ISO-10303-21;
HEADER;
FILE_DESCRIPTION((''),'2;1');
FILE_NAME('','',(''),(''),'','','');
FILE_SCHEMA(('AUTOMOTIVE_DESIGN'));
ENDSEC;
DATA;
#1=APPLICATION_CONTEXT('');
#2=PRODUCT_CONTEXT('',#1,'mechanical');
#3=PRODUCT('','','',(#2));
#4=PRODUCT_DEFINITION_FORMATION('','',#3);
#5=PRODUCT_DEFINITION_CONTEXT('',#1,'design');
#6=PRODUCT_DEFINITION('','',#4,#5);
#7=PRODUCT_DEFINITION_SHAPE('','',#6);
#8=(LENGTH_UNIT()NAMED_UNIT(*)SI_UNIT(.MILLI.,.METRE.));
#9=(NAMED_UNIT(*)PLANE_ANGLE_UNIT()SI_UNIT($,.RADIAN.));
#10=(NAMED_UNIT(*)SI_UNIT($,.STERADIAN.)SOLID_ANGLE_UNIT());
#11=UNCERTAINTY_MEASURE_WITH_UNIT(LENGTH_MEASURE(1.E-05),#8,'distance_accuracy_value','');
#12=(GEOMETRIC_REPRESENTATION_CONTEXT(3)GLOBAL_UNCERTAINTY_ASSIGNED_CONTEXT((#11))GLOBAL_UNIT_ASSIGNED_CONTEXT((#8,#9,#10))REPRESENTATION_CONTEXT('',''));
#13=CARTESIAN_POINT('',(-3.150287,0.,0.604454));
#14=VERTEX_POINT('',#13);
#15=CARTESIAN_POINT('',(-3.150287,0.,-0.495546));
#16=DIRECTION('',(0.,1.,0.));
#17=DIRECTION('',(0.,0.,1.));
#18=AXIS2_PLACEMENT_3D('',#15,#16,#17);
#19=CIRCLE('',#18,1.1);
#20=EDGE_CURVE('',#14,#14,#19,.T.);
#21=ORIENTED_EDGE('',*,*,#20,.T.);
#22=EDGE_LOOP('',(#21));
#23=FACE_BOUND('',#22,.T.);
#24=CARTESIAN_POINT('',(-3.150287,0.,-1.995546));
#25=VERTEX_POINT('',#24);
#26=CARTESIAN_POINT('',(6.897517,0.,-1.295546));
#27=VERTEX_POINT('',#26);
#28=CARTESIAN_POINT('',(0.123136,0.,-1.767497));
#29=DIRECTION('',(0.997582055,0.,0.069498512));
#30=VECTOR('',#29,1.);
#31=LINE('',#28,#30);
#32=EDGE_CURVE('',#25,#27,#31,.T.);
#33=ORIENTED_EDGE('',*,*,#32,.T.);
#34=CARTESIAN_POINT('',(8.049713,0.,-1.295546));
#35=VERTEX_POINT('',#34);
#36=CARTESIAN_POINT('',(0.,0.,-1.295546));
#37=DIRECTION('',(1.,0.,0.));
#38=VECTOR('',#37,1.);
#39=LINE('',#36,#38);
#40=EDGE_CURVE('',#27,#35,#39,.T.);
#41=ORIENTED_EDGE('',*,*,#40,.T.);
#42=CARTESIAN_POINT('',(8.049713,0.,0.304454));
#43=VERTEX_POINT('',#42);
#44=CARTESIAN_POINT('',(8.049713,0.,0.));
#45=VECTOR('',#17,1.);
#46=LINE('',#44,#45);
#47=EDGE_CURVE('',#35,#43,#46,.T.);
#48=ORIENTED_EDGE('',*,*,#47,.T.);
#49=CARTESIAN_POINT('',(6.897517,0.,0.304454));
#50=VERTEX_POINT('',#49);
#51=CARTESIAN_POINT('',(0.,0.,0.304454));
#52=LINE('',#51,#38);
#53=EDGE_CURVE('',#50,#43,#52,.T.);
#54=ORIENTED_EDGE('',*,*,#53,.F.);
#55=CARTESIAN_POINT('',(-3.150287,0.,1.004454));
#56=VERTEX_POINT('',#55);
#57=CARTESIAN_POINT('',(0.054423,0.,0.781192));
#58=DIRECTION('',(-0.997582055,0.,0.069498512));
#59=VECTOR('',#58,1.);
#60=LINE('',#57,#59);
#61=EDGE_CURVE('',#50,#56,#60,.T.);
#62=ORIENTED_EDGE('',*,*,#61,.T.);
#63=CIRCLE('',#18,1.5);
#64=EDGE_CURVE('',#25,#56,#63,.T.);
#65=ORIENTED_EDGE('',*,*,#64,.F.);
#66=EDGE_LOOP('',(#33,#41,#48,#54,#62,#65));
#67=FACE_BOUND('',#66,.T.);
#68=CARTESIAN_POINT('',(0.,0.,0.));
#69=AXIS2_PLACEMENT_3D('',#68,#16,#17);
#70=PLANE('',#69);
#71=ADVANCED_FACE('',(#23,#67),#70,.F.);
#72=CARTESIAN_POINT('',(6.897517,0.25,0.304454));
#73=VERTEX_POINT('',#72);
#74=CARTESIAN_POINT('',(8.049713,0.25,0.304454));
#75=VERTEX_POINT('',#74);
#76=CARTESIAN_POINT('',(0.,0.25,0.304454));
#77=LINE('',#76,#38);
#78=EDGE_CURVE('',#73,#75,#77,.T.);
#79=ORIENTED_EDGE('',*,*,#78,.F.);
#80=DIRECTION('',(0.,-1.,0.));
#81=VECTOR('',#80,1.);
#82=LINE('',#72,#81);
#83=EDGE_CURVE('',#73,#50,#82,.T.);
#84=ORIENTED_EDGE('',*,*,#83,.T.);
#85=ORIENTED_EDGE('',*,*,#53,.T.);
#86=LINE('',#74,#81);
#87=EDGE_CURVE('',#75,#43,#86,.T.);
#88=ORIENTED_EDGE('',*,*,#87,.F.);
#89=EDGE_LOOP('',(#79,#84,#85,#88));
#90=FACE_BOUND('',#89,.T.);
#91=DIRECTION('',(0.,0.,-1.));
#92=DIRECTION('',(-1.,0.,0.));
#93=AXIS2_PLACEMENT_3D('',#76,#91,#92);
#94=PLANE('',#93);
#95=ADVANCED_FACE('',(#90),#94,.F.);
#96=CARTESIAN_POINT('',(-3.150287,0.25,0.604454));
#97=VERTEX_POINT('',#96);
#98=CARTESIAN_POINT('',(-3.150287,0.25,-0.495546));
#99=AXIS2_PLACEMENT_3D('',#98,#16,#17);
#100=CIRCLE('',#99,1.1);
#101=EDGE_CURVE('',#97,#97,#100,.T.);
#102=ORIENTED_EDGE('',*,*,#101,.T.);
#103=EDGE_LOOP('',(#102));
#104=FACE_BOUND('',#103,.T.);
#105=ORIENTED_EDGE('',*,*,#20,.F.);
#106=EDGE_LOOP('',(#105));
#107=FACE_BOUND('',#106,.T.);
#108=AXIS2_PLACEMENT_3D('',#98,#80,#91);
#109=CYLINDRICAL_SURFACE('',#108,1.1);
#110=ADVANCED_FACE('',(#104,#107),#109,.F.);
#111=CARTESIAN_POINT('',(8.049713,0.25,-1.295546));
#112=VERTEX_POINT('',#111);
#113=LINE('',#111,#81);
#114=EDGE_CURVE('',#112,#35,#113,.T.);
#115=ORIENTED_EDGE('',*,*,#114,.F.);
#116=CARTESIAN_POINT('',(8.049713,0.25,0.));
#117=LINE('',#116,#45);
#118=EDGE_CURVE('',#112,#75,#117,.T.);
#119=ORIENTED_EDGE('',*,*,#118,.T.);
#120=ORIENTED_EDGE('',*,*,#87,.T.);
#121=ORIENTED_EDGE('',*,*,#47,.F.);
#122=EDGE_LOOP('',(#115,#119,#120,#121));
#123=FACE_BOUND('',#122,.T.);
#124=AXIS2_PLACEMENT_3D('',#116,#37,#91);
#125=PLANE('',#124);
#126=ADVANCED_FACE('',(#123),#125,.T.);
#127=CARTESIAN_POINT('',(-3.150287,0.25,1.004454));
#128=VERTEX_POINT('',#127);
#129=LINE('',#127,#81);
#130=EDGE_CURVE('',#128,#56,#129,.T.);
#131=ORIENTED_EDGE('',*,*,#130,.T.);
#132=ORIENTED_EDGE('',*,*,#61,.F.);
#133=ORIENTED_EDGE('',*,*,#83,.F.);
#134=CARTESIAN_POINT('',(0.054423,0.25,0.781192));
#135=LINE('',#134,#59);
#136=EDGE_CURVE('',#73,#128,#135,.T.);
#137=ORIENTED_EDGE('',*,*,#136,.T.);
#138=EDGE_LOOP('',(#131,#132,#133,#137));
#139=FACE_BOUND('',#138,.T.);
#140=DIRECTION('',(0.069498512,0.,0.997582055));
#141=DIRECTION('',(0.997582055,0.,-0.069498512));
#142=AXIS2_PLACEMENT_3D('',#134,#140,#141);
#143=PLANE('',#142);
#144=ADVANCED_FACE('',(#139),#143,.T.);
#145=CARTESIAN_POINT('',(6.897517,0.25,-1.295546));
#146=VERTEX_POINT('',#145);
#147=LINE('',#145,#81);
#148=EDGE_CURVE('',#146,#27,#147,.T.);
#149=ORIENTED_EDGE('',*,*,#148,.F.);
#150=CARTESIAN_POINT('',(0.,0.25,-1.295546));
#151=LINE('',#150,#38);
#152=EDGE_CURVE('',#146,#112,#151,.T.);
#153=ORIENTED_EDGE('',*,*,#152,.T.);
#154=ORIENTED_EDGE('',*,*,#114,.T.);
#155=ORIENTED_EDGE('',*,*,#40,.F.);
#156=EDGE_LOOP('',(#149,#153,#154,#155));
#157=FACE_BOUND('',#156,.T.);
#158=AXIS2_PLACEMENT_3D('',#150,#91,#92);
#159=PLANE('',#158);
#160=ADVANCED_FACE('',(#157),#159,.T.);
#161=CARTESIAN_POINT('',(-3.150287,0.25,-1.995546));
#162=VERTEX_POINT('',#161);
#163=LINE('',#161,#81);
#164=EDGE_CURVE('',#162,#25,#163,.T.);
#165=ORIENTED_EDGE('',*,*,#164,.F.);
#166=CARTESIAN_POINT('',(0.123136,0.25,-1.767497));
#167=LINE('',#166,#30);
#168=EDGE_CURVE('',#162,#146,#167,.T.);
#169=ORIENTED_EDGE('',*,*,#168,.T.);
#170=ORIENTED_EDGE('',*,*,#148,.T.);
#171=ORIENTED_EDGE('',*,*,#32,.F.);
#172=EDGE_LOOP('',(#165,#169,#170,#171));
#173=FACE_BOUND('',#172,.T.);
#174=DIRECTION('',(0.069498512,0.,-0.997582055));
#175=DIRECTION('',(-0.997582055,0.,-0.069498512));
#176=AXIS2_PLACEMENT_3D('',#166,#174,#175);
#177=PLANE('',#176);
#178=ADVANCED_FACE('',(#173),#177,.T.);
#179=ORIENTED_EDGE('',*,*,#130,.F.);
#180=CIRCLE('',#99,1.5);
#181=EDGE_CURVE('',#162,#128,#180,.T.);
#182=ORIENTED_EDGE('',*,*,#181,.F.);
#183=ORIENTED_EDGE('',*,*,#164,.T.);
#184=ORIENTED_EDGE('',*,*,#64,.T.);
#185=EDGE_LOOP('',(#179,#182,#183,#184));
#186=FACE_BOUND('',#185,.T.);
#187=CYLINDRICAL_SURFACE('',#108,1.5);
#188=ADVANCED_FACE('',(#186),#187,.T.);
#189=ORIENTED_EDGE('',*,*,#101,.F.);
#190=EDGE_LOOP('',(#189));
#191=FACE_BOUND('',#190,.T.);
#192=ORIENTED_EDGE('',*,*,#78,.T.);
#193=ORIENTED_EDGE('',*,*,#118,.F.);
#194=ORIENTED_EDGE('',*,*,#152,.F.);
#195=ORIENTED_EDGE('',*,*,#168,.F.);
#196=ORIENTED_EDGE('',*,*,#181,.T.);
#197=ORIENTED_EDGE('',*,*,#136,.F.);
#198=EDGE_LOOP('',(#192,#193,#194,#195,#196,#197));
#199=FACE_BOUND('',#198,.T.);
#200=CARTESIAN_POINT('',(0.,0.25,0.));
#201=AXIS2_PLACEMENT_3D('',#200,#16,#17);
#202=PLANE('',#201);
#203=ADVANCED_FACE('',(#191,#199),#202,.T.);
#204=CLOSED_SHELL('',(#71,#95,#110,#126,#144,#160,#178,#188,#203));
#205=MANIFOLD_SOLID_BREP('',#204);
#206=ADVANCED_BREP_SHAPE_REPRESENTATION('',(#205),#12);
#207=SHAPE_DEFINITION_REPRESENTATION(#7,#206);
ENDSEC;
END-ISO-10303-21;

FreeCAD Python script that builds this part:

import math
import FreeCAD as App
import Part
import Sketcher

V = App.Vector
Q = App.Units.Quantity

doc = App.newDocument("Part")
params = doc.addObject("Spreadsheet::Sheet", "Params")
for row, (alias, value) in enumerate([
    ("sketch1_radius", "1.5 mm"),
    ("sketch1_radius2", "1.1 mm"),
    ("sketch1_height", "1.6 mm"),
    ("pad1_length", "0.25 mm"),
], start=1):
    params.set(f"A{row}", alias)
    params.set(f"B{row}", "=" + value)
    params.setAlias(f"B{row}", alias)

body = doc.addObject("PartDesign::Body", "Body")

# Sketch on XZ plane
sketch1 = doc.addObject("Sketcher::SketchObject", "Sketch")
body.addObject(sketch1)
sketch1.AttachmentSupport = (doc.XZ_Plane, [""])
sketch1.MapMode = "FlatFace"
sketch1.addGeometry([
    Part.LineSegment(V(6.9, -1.3, 0), V(-2.94, -1.98, 0)),  # 0
    Part.LineSegment(V(-2.94, -1.98, 0), V(-3.15, -2, 0)),  # 1
    Part.ArcOfCircle(Part.Circle(V(-3.15, -0.5, 0), V(0, 0, 1), 1.5), math.radians(-148), math.radians(-90)),  # 2
    Part.ArcOfCircle(Part.Circle(V(-3.15, -0.5, 0), V(0, 0, 1), 1.5), math.radians(180), math.radians(212)),  # 3
    Part.ArcOfCircle(Part.Circle(V(-3.15, -0.5, 0), V(0, 0, 1), 1.5), math.radians(148), math.radians(180)),  # 4
    Part.ArcOfCircle(Part.Circle(V(-3.15, -0.5, 0), V(0, 0, 1), 1.5), math.radians(90), math.radians(148)),  # 5
    Part.LineSegment(V(-3.15, 1, 0), V(-2.94, 0.99, 0)),  # 6
    Part.LineSegment(V(-2.94, 0.99, 0), V(6.9, 0.3, 0)),  # 7
    Part.LineSegment(V(6.9, 0.3, 0), V(8.05, 0.3, 0)),  # 8
    Part.LineSegment(V(8.05, 0.3, 0), V(8.05, -1.3, 0)),  # 9
    Part.LineSegment(V(8.05, -1.3, 0), V(6.9, -1.3, 0)),  # 10
    Part.ArcOfCircle(Part.Circle(V(-3.15, -0.5, 0), V(0, 0, 1), 1.1), math.radians(133), math.radians(227)),  # 11
    Part.ArcOfCircle(Part.Circle(V(-3.15, -0.5, 0), V(0, 0, 1), 1.1), math.radians(-133), math.radians(-47)),  # 12
    Part.ArcOfCircle(Part.Circle(V(-3.15, -0.5, 0), V(0, 0, 1), 1.1), math.radians(-47), math.radians(0)),  # 13
    Part.ArcOfCircle(Part.Circle(V(-3.15, -0.5, 0), V(0, 0, 1), 1.1), math.radians(0), math.radians(47)),  # 14
    Part.ArcOfCircle(Part.Circle(V(-3.15, -0.5, 0), V(0, 0, 1), 1.1), math.radians(47), math.radians(133)),  # 15
], False)
sketch1.addConstraint([
    Sketcher.Constraint("Coincident", 0, 2, 1, 1),
    Sketcher.Constraint("Coincident", 1, 2, 2, 2),
    Sketcher.Constraint("Tangent", 2, 1, 3, 2),
    Sketcher.Constraint("Tangent", 3, 1, 4, 2),
    Sketcher.Constraint("Tangent", 4, 1, 5, 2),
    Sketcher.Constraint("Coincident", 5, 1, 6, 1),
    Sketcher.Constraint("Coincident", 6, 2, 7, 1),
    Sketcher.Constraint("Coincident", 7, 2, 8, 1),
    Sketcher.Constraint("Coincident", 8, 2, 9, 1),
    Sketcher.Constraint("Coincident", 9, 2, 10, 1),
    Sketcher.Constraint("Coincident", 10, 2, 0, 1),
    Sketcher.Constraint("Tangent", 11, 2, 12, 1),
    Sketcher.Constraint("Tangent", 12, 2, 13, 1),
    Sketcher.Constraint("Tangent", 13, 2, 14, 1),
    Sketcher.Constraint("Tangent", 14, 2, 15, 1),
    Sketcher.Constraint("Tangent", 15, 2, 11, 1),
    Sketcher.Constraint("Horizontal", 8),
    Sketcher.Constraint("Vertical", 9),
    Sketcher.Constraint("Horizontal", 10),
    Sketcher.Constraint("Coincident", 4, 3, 2, 3),
    Sketcher.Constraint("Coincident", 11, 3, 2, 3),
    Sketcher.Constraint("Coincident", 13, 3, 2, 3),
    Sketcher.Constraint("Equal", 4, 5),
    Sketcher.Constraint("Parallel", 0, 1),
    Sketcher.Constraint("Parallel", 6, 7),
    Sketcher.Constraint("Horizontal", 15, 3, 3, 1),
    Sketcher.Constraint("Horizontal", 4, 1, 7, 2),
    Sketcher.Constraint("Horizontal", 2, 1, 9, 2),
    Sketcher.Constraint("Horizontal", 10, 2, 11, 2),
    Sketcher.Constraint("Horizontal", 11, 2, 12, 2),
    Sketcher.Constraint("Horizontal", 3, 1, 13, 2),
    Sketcher.Constraint("Horizontal", 8, 2, 14, 2),
    Sketcher.Constraint("Horizontal", 14, 2, 15, 2),
    Sketcher.Constraint("Vertical", 15, 3, 1, 2),
    Sketcher.Constraint("Vertical", 2, 1, 4, 1),
    Sketcher.Constraint("Vertical", 1, 2, 5, 1),
    Sketcher.Constraint("Vertical", 0, 2, 6, 2),
    Sketcher.Constraint("Vertical", 7, 2, 10, 2),
    Sketcher.Constraint("Radius", 2, Q("1.5 mm")),
    Sketcher.Constraint("Radius", 11, Q("1.1 mm")),
    Sketcher.Constraint("DistanceY", 9, 2, 9, 1, Q("1.6 mm")),
    Sketcher.Constraint("DistanceX", 5, 1, 8, 2, Q("11.2 mm")),
    Sketcher.Constraint("DistanceX", 8, 1, 8, 2, Q("1.152196 mm")),
    Sketcher.Constraint("DistanceX", 11, 2, -1, 1, Q("3.905271 mm")),
    Sketcher.Constraint("DistanceX", 2, 3, 0, 2, Q("0.207991 mm")),
    Sketcher.Constraint("DistanceY", 2, 3, -1, 1, Q("0.495546 mm")),
])
sketch1.setExpression("Constraints[38]", "Params.sketch1_radius")
sketch1.setExpression("Constraints[39]", "Params.sketch1_radius2")
sketch1.setExpression("Constraints[40]", "Params.sketch1_height")
pad1 = doc.addObject("PartDesign::Pad", "Pad")
body.addObject(pad1)
pad1.Profile = sketch1
pad1.setExpression("Length", "Params.pad1_length")
pad1.Reversed = True

doc.recompute()
